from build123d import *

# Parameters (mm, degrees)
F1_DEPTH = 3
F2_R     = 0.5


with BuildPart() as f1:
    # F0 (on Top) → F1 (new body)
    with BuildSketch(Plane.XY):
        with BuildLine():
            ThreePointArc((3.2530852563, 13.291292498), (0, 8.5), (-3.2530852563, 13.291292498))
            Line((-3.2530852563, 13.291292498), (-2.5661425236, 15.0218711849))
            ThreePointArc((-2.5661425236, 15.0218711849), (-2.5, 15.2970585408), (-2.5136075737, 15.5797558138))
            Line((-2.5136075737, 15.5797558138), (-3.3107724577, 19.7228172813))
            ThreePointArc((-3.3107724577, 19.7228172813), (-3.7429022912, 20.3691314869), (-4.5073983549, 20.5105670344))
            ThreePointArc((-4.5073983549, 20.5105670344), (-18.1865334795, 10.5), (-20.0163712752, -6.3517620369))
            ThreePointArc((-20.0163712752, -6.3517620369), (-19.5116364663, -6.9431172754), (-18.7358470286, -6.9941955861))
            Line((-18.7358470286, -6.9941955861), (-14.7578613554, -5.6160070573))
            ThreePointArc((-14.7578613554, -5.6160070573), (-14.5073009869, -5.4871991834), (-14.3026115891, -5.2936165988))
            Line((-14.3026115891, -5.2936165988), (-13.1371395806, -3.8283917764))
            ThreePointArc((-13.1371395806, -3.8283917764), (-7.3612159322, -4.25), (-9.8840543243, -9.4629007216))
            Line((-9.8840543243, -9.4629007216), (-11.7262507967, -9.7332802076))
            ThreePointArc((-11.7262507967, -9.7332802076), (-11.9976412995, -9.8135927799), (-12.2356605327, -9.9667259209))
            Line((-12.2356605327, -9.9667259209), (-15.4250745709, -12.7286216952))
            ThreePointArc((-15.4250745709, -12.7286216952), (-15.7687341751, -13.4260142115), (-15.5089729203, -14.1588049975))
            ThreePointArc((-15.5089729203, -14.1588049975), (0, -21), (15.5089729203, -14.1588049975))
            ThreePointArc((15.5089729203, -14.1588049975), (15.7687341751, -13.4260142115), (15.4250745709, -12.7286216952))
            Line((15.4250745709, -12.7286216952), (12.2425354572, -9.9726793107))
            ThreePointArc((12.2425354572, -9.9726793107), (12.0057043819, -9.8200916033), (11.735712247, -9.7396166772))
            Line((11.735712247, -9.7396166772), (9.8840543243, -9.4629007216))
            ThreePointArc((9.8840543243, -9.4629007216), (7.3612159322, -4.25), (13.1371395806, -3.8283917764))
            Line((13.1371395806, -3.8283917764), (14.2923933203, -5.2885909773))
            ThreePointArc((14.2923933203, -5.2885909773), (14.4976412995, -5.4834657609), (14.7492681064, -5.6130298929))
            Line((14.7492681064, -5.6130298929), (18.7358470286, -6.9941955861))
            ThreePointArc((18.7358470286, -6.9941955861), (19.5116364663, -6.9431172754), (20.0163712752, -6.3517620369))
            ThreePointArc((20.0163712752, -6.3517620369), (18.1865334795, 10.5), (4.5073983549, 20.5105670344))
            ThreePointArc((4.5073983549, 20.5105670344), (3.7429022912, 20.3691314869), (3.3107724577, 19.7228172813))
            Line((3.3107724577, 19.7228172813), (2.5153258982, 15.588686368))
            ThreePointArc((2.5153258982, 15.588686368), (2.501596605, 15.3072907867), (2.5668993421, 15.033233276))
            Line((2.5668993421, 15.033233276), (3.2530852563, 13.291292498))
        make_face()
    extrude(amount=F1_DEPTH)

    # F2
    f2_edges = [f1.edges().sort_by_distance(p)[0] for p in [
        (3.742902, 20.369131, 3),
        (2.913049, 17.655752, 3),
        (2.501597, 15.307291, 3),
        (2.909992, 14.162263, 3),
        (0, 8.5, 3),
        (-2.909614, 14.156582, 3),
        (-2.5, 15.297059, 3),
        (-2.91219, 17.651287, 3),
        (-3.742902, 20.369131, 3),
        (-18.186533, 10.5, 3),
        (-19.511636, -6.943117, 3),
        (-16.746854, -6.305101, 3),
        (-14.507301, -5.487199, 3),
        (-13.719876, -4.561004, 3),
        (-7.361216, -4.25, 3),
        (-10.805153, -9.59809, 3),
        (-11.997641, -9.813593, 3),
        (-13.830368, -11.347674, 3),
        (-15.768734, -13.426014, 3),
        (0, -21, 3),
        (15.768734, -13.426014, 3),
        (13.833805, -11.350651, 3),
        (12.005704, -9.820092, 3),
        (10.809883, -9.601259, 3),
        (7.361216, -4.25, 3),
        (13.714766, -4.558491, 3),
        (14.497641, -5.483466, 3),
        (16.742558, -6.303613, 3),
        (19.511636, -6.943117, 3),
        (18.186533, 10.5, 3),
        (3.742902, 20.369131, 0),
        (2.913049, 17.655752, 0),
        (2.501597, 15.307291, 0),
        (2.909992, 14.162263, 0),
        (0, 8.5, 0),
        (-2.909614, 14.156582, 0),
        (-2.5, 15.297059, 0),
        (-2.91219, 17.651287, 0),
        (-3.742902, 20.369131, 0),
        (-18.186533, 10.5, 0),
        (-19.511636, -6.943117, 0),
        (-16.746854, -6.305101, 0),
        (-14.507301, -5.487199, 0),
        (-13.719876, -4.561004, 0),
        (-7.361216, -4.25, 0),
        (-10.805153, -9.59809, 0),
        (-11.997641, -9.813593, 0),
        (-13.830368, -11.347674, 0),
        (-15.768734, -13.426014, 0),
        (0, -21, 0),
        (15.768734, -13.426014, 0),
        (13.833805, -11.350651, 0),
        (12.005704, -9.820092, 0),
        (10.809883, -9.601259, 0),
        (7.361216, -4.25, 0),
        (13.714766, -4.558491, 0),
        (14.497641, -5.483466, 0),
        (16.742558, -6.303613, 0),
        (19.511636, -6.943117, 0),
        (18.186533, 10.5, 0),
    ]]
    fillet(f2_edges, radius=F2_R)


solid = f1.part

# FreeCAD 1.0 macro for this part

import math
import FreeCAD as App
import Part
import Sketcher

V = App.Vector
Q = App.Units.Quantity


def edges_at(feature, points):
    """Names of the edges that pass closest to the given points."""
    edges = feature.Shape.Edges
    near = lambda p: min(range(len(edges)), key=lambda i: edges[i].distToShape(Part.Vertex(*p))[0])
    return sorted({f"Edge{near(p) + 1}" for p in points})

doc = App.newDocument("Part")
params = doc.addObject("Spreadsheet::Sheet", "Params")
for row, (alias, value) in enumerate([
    ("sketch1_radius", "1 mm"),
    ("sketch1_radius2", "1 mm"),
    ("sketch1_radius3", "21 mm"),
    ("sketch1_radius4", "1 mm"),
    ("sketch1_radius5", "1 mm"),
    ("pad1_length", "3 mm"),
    ("fillet_radius", "0.5 mm"),
], start=1):
    params.set(f"A{row}", alias)
    params.set(f"B{row}", "=" + value)
    params.setAlias(f"B{row}", alias)

body = doc.addObject("PartDesign::Body", "Body")

# Sketch on XY plane
sketch1 = body.newObject("Sketcher::SketchObject", "Sketch")
sketch1.AttachmentSupport = (doc.getObject("XY_Plane"), [""])
sketch1.MapMode = "FlatFace"
sketch1.addGeometry([
    Part.ArcOfCircle(Part.Circle(V(0, 12, 0), V(0, 0, 1), 3.5), math.radians(158.349697), math.radians(381.650303)),  # 0
    Part.LineSegment(V(-3.253085, 13.291292, 0), V(-2.566143, 15.021871, 0)),  # 1
    Part.ArcOfCircle(Part.Circle(V(-3.495595, 15.390812, 0), V(0, 0, 1), 1), math.radians(-21.650303), math.radians(10.891159)),  # 2
    Part.LineSegment(V(-2.513608, 15.579756, 0), V(-3.310772, 19.722817, 0)),  # 3
    Part.ArcOfCircle(Part.Circle(V(-4.29276, 19.533873, 0), V(0, 0, 1), 1), math.radians(10.891159), math.radians(102.394291)),  # 4
    Part.ArcOfCircle(Part.Circle(V(0, 0, 0), V(0, 0, 1), 21), math.radians(102.394291), math.radians(197.605709)),  # 5
    Part.ArcOfCircle(Part.Circle(V(-19.063211, -6.049297, 0), V(0, 0, 1), 1), math.radians(-162.394291), math.radians(-70.891159)),  # 6
    Part.LineSegment(V(-18.735847, -6.994196, 0), V(-14.757861, -5.616007, 0)),  # 7
    Part.ArcOfCircle(Part.Circle(V(-15.085225, -4.671109, 0), V(0, 0, 1), 1), math.radians(-70.891159), math.radians(-38.49951)),  # 8
    Part.LineSegment(V(-14.302612, -5.293617, 0), V(-13.13714, -3.828392, 0)),  # 9
    Part.ArcOfCircle(Part.Circle(V(-10.392305, -6, 0), V(0, 0, 1), 3.5), math.radians(-81.650303), math.radians(141.650303)),  # 10
    Part.LineSegment(V(-9.884054, -9.462901, 0), V(-11.726251, -9.73328, 0)),  # 11
    Part.ArcOfCircle(Part.Circle(V(-11.581036, -10.72268, 0), V(0, 0, 1), 1), math.radians(98.349697), math.radians(130.891159)),  # 12
    Part.LineSegment(V(-12.235661, -9.966726, 0), V(-15.425075, -12.728622, 0)),  # 13
    Part.ArcOfCircle(Part.Circle(V(-14.77045, -13.484576, 0), V(0, 0, 1), 1), math.radians(130.891159), math.radians(222.394291)),  # 14
    Part.ArcOfCircle(Part.Circle(V(0, 0, 0), V(0, 0, 1), 21), math.radians(-137.605709), math.radians(-42.394291)),  # 15
    Part.ArcOfCircle(Part.Circle(V(14.77045, -13.484576, 0), V(0, 0, 1), 1), math.radians(-42.394291), math.radians(49.108841)),  # 16
    Part.LineSegment(V(15.425075, -12.728622, 0), V(12.242535, -9.972679, 0)),  # 17
    Part.ArcOfCircle(Part.Circle(V(11.587911, -10.728634, 0), V(0, 0, 1), 1), math.radians(49.108841), math.radians(81.50049)),  # 18
    Part.LineSegment(V(11.735712, -9.739617, 0), V(9.884054, -9.462901, 0)),  # 19
    Part.ArcOfCircle(Part.Circle(V(10.392305, -6, 0), V(0, 0, 1), 3.5), math.radians(38.349697), math.radians(261.650303)),  # 20
    Part.LineSegment(V(13.13714, -3.828392, 0), V(14.292393, -5.288591, 0)),  # 21
    Part.ArcOfCircle(Part.Circle(V(15.076632, -4.668131, 0), V(0, 0, 1), 1), math.radians(-141.650303), math.radians(-109.108841)),  # 22
    Part.LineSegment(V(14.749268, -5.61303, 0), V(18.735847, -6.994196, 0)),  # 23
    Part.ArcOfCircle(Part.Circle(V(19.063211, -6.049297, 0), V(0, 0, 1), 1), math.radians(-109.108841), math.radians(-17.605709)),  # 24
    Part.ArcOfCircle(Part.Circle(V(0, 0, 0), V(0, 0, 1), 21), math.radians(-17.605709), math.radians(77.605709)),  # 25
    Part.ArcOfCircle(Part.Circle(V(4.29276, 19.533873, 0), V(0, 0, 1), 1), math.radians(77.605709), math.radians(169.108841)),  # 26
    Part.LineSegment(V(3.310772, 19.722817, 0), V(2.515326, 15.588686, 0)),  # 27
    Part.ArcOfCircle(Part.Circle(V(3.497314, 15.399742, 0), V(0, 0, 1), 1), math.radians(169.108841), math.radians(201.50049)),  # 28
    Part.LineSegment(V(2.566899, 15.033233, 0), V(3.253085, 13.291292, 0)),  # 29
], False)
sketch1.addConstraint([
    Sketcher.Constraint("Coincident", 0, 1, 1, 1),
    Sketcher.Constraint("Coincident", 1, 2, 2, 1),
    Sketcher.Constraint("Coincident", 2, 2, 3, 1),
    Sketcher.Constraint("Coincident", 3, 2, 4, 1),
    Sketcher.Constraint("Coincident", 4, 2, 5, 1),
    Sketcher.Constraint("Coincident", 5, 2, 6, 1),
    Sketcher.Constraint("Coincident", 6, 2, 7, 1),
    Sketcher.Constraint("Coincident", 7, 2, 8, 1),
    Sketcher.Constraint("Coincident", 8, 2, 9, 1),
    Sketcher.Constraint("Coincident", 9, 2, 10, 2),
    Sketcher.Constraint("Coincident", 10, 1, 11, 1),
    Sketcher.Constraint("Coincident", 11, 2, 12, 1),
    Sketcher.Constraint("Coincident", 12, 2, 13, 1),
    Sketcher.Constraint("Coincident", 13, 2, 14, 1),
    Sketcher.Constraint("Coincident", 14, 2, 15, 1),
    Sketcher.Constraint("Coincident", 15, 2, 16, 1),
    Sketcher.Constraint("Coincident", 16, 2, 17, 1),
    Sketcher.Constraint("Coincident", 17, 2, 18, 1),
    Sketcher.Constraint("Coincident", 18, 2, 19, 1),
    Sketcher.Constraint("Coincident", 19, 2, 20, 2),
    Sketcher.Constraint("Coincident", 20, 1, 21, 1),
    Sketcher.Constraint("Coincident", 21, 2, 22, 1),
    Sketcher.Constraint("Coincident", 22, 2, 23, 1),
    Sketcher.Constraint("Coincident", 23, 2, 24, 1),
    Sketcher.Constraint("Coincident", 24, 2, 25, 1),
    Sketcher.Constraint("Coincident", 25, 2, 26, 1),
    Sketcher.Constraint("Coincident", 26, 2, 27, 1),
    Sketcher.Constraint("Coincident", 27, 2, 28, 1),
    Sketcher.Constraint("Coincident", 28, 2, 29, 1),
    Sketcher.Constraint("Coincident", 29, 2, 0, 2),
    Sketcher.Constraint("Coincident", 5, 3, -1, 1),
    Sketcher.Constraint("Coincident", 15, 3, -1, 1),
    Sketcher.Constraint("Coincident", 25, 3, -1, 1),
    Sketcher.Constraint("PointOnObject", 0, 3, -2),
    Sketcher.Constraint("Radius", 2, Q("1 mm")),
    Sketcher.Constraint("Radius", 4, Q("1 mm")),
    Sketcher.Constraint("Radius", 5, Q("21 mm")),
    Sketcher.Constraint("Radius", 6, Q("1 mm")),
    Sketcher.Constraint("Radius", 8, Q("1 mm")),
    Sketcher.Constraint("Radius", 12, Q("1 mm")),
    Sketcher.Constraint("Radius", 14, Q("1 mm")),
    Sketcher.Constraint("Radius", 15, Q("21 mm")),
    Sketcher.Constraint("Radius", 16, Q("1 mm")),
    Sketcher.Constraint("Radius", 18, Q("1 mm")),
    Sketcher.Constraint("Radius", 22, Q("1 mm")),
    Sketcher.Constraint("Radius", 24, Q("1 mm")),
    Sketcher.Constraint("Radius", 25, Q("21 mm")),
    Sketcher.Constraint("Radius", 26, Q("1 mm")),
    Sketcher.Constraint("Radius", 28, Q("1 mm")),
    Sketcher.Constraint("Radius", 0, Q("3.5 mm")),
    Sketcher.Constraint("Radius", 10, Q("3.5 mm")),
    Sketcher.Constraint("Radius", 20, Q("3.5 mm")),
    Sketcher.Constraint("DistanceY", -1, 1, 0, 3, Q("12 mm")),
    Sketcher.Constraint("DistanceY", 10, 3, -1, 1, Q("6 mm")),
    Sketcher.Constraint("DistanceY", 20, 3, -1, 1, Q("6 mm")),
    Sketcher.Constraint("DistanceX", 4, 2, -1, 1, Q("4.507398 mm")),
    Sketcher.Constraint("DistanceY", 10, 1, -1, 1, Q("9.462901 mm")),
    Sketcher.Constraint("DistanceY", 19, 2, -1, 1, Q("9.462901 mm")),
    Sketcher.Constraint("DistanceX", -1, 1, 25, 2, Q("4.507398 mm")),
    Sketcher.Constraint("DistanceX", -1, 1, 28, 2, Q("2.566899 mm")),
    Sketcher.Constraint("DistanceX", 18, 3, 24, 3, Q("7.475299 mm")),
    Sketcher.Constraint("DistanceX", 0, 1, 28, 3, Q("6.750399 mm")),
    Sketcher.Constraint("DistanceY", 6, 2, 6, 3, Q("0.944898 mm")),
    Sketcher.Constraint("DistanceY", 7, 2, 8, 3, Q("0.944898 mm")),
    Sketcher.Constraint("DistanceX", 6, 3, 8, 2, Q("4.760599 mm")),
    Sketcher.Constraint("DistanceY", 12, 3, 11, 2, Q("0.9894 mm")),
    Sketcher.Constraint("DistanceX", 14, 3, 11, 2, Q("3.0442 mm")),
    Sketcher.Constraint("DistanceX", 14, 2, 13, 2, Q("0.083898 mm")),
    Sketcher.Constraint("DistanceX", 16, 2, 15, 2, Q("0.083898 mm")),
    Sketcher.Constraint("DistanceX", 18, 3, 18, 2, Q("0.147801 mm")),
    Sketcher.Constraint("DistanceY", 21, 2, 20, 1, Q("1.460199 mm")),
    Sketcher.Constraint("DistanceY", 22, 2, 22, 3, Q("0.944898 mm")),
    Sketcher.Constraint("DistanceY", 23, 2, 24, 3, Q("0.944898 mm")),
    Sketcher.Constraint("Distance", 7, Q("4.209961 mm")),
    Sketcher.Constraint("Distance", 9, Q("1.87222 mm")),
    Sketcher.Constraint("Distance", 17, Q("4.209961 mm")),
    Sketcher.Constraint("Distance", 19, Q("1.87222 mm")),
    Sketcher.Constraint("Distance", 27, Q("4.209961 mm")),
    Sketcher.Constraint("Distance", 29, Q("1.87222 mm")),
    Sketcher.Constraint("DistanceY", -1, 1, 2, 3, Q("15.390812 mm")),
    Sketcher.Constraint("DistanceX", 4, 3, -1, 1, Q("4.29276 mm")),
    Sketcher.Constraint("DistanceX", 6, 3, -1, 1, Q("19.063211 mm")),
    Sketcher.Constraint("DistanceY", 8, 3, -1, 1, Q("4.671109 mm")),
    Sketcher.Constraint("DistanceY", 12, 3, -1, 1, Q("10.72268 mm")),
    Sketcher.Constraint("DistanceX", 14, 3, -1, 1, Q("14.77045 mm")),
    Sketcher.Constraint("DistanceX", -1, 1, 16, 3, Q("14.77045 mm")),
    Sketcher.Constraint("DistanceX", -1, 1, 18, 3, Q("11.587911 mm")),
    Sketcher.Constraint("DistanceX", -1, 1, 22, 3, Q("15.076632 mm")),
    Sketcher.Constraint("DistanceY", 22, 3, -1, 1, Q("4.668131 mm")),
    Sketcher.Constraint("DistanceX", -1, 1, 26, 3, Q("4.29276 mm")),
    Sketcher.Constraint("DistanceY", -1, 1, 1, 2, Q("15.021871 mm")),
    Sketcher.Constraint("DistanceX", 5, 2, -1, 1, Q("20.016371 mm")),
    Sketcher.Constraint("DistanceX", 9, 2, -1, 1, Q("13.13714 mm")),
    Sketcher.Constraint("DistanceX", 12, 2, -1, 1, Q("12.235661 mm")),
    Sketcher.Constraint("DistanceY", 13, 2, -1, 1, Q("12.728622 mm")),
    Sketcher.Constraint("DistanceY", 16, 2, -1, 1, Q("12.728622 mm")),
    Sketcher.Constraint("DistanceY", 17, 2, -1, 1, Q("9.972679 mm")),
    Sketcher.Constraint("DistanceX", -1, 1, 20, 1, Q("13.13714 mm")),
    Sketcher.Constraint("DistanceX", -1, 1, 24, 2, Q("20.016371 mm")),
    Sketcher.Constraint("DistanceX", 8, 3, 2, 3, Q("11.58963 mm")),
    Sketcher.Constraint("DistanceY", 28, 3, 26, 3, Q("4.134131 mm")),
    Sketcher.Constraint("DistanceX", 2, 3, 28, 3, Q("6.992909 mm")),
    Sketcher.Constraint("DistanceY", 2, 2, 3, 2, Q("4.143061 mm")),
    Sketcher.Constraint("DistanceX", 3, 2, 1, 2, Q("0.74463 mm")),
    Sketcher.Constraint("DistanceY", 26, 2, 25, 2, Q("0.78775 mm")),
])
sketch1.setExpression("Constraints[34]", "Params.sketch1_radius")
sketch1.setExpression("Constraints[35]", "Params.sketch1_radius2")
sketch1.setExpression("Constraints[36]", "Params.sketch1_radius3")
sketch1.setExpression("Constraints[37]", "Params.sketch1_radius4")
sketch1.setExpression("Constraints[38]", "Params.sketch1_radius5")
pad1 = body.newObject("PartDesign::Pad", "Pad")
pad1.Profile = sketch1
pad1.setExpression("Length", "Params.pad1_length")
doc.recompute()

fillet = body.newObject("PartDesign::Fillet", "Fillet")
fillet.Base = (pad1, edges_at(pad1, [
    (3.743, 20.369, 3),
    (2.913, 17.656, 3),
    (2.502, 15.307, 3),
    (2.91, 14.162, 3),
    (0, 8.5, 3),
    (-2.91, 14.157, 3),
    (-2.5, 15.297, 3),
    (-2.912, 17.651, 3),
    (-3.743, 20.369, 3),
    (-18.187, 10.5, 3),
    (-19.512, -6.943, 3),
    (-16.747, -6.305, 3),
    (-14.507, -5.487, 3),
    (-13.72, -4.561, 3),
    (-7.361, -4.25, 3),
    (-10.805, -9.598, 3),
    (-11.998, -9.814, 3),
    (-13.83, -11.348, 3),
    (-15.769, -13.426, 3),
    (0, -21, 3),
    (15.769, -13.426, 3),
    (13.834, -11.351, 3),
    (12.006, -9.82, 3),
    (10.81, -9.601, 3),
    (7.361, -4.25, 3),
    (13.715, -4.558, 3),
    (14.498, -5.483, 3),
    (16.743, -6.304, 3),
    (19.512, -6.943, 3),
    (18.187, 10.5, 3),
    (3.743, 20.369, 0),
    (2.913, 17.656, 0),
    (2.502, 15.307, 0),
    (2.91, 14.162, 0),
    (0, 8.5, 0),
    (-2.91, 14.157, 0),
    (-2.5, 15.297, 0),
    (-2.912, 17.651, 0),
    (-3.743, 20.369, 0),
    (-18.187, 10.5, 0),
    (-19.512, -6.943, 0),
    (-16.747, -6.305, 0),
    (-14.507, -5.487, 0),
    (-13.72, -4.561, 0),
    (-7.361, -4.25, 0),
    (-10.805, -9.598, 0),
    (-11.998, -9.814, 0),
    (-13.83, -11.348, 0),
    (-15.769, -13.426, 0),
    (0, -21, 0),
    (15.769, -13.426, 0),
    (13.834, -11.351, 0),
    (12.006, -9.82, 0),
    (10.81, -9.601, 0),
    (7.361, -4.25, 0),
    (13.715, -4.558, 0),
    (14.498, -5.483, 0),
    (16.743, -6.304, 0),
    (19.512, -6.943, 0),
    (18.187, 10.5, 0),
]))
fillet.setExpression("Radius", "Params.fillet_radius")

doc.recompute()
